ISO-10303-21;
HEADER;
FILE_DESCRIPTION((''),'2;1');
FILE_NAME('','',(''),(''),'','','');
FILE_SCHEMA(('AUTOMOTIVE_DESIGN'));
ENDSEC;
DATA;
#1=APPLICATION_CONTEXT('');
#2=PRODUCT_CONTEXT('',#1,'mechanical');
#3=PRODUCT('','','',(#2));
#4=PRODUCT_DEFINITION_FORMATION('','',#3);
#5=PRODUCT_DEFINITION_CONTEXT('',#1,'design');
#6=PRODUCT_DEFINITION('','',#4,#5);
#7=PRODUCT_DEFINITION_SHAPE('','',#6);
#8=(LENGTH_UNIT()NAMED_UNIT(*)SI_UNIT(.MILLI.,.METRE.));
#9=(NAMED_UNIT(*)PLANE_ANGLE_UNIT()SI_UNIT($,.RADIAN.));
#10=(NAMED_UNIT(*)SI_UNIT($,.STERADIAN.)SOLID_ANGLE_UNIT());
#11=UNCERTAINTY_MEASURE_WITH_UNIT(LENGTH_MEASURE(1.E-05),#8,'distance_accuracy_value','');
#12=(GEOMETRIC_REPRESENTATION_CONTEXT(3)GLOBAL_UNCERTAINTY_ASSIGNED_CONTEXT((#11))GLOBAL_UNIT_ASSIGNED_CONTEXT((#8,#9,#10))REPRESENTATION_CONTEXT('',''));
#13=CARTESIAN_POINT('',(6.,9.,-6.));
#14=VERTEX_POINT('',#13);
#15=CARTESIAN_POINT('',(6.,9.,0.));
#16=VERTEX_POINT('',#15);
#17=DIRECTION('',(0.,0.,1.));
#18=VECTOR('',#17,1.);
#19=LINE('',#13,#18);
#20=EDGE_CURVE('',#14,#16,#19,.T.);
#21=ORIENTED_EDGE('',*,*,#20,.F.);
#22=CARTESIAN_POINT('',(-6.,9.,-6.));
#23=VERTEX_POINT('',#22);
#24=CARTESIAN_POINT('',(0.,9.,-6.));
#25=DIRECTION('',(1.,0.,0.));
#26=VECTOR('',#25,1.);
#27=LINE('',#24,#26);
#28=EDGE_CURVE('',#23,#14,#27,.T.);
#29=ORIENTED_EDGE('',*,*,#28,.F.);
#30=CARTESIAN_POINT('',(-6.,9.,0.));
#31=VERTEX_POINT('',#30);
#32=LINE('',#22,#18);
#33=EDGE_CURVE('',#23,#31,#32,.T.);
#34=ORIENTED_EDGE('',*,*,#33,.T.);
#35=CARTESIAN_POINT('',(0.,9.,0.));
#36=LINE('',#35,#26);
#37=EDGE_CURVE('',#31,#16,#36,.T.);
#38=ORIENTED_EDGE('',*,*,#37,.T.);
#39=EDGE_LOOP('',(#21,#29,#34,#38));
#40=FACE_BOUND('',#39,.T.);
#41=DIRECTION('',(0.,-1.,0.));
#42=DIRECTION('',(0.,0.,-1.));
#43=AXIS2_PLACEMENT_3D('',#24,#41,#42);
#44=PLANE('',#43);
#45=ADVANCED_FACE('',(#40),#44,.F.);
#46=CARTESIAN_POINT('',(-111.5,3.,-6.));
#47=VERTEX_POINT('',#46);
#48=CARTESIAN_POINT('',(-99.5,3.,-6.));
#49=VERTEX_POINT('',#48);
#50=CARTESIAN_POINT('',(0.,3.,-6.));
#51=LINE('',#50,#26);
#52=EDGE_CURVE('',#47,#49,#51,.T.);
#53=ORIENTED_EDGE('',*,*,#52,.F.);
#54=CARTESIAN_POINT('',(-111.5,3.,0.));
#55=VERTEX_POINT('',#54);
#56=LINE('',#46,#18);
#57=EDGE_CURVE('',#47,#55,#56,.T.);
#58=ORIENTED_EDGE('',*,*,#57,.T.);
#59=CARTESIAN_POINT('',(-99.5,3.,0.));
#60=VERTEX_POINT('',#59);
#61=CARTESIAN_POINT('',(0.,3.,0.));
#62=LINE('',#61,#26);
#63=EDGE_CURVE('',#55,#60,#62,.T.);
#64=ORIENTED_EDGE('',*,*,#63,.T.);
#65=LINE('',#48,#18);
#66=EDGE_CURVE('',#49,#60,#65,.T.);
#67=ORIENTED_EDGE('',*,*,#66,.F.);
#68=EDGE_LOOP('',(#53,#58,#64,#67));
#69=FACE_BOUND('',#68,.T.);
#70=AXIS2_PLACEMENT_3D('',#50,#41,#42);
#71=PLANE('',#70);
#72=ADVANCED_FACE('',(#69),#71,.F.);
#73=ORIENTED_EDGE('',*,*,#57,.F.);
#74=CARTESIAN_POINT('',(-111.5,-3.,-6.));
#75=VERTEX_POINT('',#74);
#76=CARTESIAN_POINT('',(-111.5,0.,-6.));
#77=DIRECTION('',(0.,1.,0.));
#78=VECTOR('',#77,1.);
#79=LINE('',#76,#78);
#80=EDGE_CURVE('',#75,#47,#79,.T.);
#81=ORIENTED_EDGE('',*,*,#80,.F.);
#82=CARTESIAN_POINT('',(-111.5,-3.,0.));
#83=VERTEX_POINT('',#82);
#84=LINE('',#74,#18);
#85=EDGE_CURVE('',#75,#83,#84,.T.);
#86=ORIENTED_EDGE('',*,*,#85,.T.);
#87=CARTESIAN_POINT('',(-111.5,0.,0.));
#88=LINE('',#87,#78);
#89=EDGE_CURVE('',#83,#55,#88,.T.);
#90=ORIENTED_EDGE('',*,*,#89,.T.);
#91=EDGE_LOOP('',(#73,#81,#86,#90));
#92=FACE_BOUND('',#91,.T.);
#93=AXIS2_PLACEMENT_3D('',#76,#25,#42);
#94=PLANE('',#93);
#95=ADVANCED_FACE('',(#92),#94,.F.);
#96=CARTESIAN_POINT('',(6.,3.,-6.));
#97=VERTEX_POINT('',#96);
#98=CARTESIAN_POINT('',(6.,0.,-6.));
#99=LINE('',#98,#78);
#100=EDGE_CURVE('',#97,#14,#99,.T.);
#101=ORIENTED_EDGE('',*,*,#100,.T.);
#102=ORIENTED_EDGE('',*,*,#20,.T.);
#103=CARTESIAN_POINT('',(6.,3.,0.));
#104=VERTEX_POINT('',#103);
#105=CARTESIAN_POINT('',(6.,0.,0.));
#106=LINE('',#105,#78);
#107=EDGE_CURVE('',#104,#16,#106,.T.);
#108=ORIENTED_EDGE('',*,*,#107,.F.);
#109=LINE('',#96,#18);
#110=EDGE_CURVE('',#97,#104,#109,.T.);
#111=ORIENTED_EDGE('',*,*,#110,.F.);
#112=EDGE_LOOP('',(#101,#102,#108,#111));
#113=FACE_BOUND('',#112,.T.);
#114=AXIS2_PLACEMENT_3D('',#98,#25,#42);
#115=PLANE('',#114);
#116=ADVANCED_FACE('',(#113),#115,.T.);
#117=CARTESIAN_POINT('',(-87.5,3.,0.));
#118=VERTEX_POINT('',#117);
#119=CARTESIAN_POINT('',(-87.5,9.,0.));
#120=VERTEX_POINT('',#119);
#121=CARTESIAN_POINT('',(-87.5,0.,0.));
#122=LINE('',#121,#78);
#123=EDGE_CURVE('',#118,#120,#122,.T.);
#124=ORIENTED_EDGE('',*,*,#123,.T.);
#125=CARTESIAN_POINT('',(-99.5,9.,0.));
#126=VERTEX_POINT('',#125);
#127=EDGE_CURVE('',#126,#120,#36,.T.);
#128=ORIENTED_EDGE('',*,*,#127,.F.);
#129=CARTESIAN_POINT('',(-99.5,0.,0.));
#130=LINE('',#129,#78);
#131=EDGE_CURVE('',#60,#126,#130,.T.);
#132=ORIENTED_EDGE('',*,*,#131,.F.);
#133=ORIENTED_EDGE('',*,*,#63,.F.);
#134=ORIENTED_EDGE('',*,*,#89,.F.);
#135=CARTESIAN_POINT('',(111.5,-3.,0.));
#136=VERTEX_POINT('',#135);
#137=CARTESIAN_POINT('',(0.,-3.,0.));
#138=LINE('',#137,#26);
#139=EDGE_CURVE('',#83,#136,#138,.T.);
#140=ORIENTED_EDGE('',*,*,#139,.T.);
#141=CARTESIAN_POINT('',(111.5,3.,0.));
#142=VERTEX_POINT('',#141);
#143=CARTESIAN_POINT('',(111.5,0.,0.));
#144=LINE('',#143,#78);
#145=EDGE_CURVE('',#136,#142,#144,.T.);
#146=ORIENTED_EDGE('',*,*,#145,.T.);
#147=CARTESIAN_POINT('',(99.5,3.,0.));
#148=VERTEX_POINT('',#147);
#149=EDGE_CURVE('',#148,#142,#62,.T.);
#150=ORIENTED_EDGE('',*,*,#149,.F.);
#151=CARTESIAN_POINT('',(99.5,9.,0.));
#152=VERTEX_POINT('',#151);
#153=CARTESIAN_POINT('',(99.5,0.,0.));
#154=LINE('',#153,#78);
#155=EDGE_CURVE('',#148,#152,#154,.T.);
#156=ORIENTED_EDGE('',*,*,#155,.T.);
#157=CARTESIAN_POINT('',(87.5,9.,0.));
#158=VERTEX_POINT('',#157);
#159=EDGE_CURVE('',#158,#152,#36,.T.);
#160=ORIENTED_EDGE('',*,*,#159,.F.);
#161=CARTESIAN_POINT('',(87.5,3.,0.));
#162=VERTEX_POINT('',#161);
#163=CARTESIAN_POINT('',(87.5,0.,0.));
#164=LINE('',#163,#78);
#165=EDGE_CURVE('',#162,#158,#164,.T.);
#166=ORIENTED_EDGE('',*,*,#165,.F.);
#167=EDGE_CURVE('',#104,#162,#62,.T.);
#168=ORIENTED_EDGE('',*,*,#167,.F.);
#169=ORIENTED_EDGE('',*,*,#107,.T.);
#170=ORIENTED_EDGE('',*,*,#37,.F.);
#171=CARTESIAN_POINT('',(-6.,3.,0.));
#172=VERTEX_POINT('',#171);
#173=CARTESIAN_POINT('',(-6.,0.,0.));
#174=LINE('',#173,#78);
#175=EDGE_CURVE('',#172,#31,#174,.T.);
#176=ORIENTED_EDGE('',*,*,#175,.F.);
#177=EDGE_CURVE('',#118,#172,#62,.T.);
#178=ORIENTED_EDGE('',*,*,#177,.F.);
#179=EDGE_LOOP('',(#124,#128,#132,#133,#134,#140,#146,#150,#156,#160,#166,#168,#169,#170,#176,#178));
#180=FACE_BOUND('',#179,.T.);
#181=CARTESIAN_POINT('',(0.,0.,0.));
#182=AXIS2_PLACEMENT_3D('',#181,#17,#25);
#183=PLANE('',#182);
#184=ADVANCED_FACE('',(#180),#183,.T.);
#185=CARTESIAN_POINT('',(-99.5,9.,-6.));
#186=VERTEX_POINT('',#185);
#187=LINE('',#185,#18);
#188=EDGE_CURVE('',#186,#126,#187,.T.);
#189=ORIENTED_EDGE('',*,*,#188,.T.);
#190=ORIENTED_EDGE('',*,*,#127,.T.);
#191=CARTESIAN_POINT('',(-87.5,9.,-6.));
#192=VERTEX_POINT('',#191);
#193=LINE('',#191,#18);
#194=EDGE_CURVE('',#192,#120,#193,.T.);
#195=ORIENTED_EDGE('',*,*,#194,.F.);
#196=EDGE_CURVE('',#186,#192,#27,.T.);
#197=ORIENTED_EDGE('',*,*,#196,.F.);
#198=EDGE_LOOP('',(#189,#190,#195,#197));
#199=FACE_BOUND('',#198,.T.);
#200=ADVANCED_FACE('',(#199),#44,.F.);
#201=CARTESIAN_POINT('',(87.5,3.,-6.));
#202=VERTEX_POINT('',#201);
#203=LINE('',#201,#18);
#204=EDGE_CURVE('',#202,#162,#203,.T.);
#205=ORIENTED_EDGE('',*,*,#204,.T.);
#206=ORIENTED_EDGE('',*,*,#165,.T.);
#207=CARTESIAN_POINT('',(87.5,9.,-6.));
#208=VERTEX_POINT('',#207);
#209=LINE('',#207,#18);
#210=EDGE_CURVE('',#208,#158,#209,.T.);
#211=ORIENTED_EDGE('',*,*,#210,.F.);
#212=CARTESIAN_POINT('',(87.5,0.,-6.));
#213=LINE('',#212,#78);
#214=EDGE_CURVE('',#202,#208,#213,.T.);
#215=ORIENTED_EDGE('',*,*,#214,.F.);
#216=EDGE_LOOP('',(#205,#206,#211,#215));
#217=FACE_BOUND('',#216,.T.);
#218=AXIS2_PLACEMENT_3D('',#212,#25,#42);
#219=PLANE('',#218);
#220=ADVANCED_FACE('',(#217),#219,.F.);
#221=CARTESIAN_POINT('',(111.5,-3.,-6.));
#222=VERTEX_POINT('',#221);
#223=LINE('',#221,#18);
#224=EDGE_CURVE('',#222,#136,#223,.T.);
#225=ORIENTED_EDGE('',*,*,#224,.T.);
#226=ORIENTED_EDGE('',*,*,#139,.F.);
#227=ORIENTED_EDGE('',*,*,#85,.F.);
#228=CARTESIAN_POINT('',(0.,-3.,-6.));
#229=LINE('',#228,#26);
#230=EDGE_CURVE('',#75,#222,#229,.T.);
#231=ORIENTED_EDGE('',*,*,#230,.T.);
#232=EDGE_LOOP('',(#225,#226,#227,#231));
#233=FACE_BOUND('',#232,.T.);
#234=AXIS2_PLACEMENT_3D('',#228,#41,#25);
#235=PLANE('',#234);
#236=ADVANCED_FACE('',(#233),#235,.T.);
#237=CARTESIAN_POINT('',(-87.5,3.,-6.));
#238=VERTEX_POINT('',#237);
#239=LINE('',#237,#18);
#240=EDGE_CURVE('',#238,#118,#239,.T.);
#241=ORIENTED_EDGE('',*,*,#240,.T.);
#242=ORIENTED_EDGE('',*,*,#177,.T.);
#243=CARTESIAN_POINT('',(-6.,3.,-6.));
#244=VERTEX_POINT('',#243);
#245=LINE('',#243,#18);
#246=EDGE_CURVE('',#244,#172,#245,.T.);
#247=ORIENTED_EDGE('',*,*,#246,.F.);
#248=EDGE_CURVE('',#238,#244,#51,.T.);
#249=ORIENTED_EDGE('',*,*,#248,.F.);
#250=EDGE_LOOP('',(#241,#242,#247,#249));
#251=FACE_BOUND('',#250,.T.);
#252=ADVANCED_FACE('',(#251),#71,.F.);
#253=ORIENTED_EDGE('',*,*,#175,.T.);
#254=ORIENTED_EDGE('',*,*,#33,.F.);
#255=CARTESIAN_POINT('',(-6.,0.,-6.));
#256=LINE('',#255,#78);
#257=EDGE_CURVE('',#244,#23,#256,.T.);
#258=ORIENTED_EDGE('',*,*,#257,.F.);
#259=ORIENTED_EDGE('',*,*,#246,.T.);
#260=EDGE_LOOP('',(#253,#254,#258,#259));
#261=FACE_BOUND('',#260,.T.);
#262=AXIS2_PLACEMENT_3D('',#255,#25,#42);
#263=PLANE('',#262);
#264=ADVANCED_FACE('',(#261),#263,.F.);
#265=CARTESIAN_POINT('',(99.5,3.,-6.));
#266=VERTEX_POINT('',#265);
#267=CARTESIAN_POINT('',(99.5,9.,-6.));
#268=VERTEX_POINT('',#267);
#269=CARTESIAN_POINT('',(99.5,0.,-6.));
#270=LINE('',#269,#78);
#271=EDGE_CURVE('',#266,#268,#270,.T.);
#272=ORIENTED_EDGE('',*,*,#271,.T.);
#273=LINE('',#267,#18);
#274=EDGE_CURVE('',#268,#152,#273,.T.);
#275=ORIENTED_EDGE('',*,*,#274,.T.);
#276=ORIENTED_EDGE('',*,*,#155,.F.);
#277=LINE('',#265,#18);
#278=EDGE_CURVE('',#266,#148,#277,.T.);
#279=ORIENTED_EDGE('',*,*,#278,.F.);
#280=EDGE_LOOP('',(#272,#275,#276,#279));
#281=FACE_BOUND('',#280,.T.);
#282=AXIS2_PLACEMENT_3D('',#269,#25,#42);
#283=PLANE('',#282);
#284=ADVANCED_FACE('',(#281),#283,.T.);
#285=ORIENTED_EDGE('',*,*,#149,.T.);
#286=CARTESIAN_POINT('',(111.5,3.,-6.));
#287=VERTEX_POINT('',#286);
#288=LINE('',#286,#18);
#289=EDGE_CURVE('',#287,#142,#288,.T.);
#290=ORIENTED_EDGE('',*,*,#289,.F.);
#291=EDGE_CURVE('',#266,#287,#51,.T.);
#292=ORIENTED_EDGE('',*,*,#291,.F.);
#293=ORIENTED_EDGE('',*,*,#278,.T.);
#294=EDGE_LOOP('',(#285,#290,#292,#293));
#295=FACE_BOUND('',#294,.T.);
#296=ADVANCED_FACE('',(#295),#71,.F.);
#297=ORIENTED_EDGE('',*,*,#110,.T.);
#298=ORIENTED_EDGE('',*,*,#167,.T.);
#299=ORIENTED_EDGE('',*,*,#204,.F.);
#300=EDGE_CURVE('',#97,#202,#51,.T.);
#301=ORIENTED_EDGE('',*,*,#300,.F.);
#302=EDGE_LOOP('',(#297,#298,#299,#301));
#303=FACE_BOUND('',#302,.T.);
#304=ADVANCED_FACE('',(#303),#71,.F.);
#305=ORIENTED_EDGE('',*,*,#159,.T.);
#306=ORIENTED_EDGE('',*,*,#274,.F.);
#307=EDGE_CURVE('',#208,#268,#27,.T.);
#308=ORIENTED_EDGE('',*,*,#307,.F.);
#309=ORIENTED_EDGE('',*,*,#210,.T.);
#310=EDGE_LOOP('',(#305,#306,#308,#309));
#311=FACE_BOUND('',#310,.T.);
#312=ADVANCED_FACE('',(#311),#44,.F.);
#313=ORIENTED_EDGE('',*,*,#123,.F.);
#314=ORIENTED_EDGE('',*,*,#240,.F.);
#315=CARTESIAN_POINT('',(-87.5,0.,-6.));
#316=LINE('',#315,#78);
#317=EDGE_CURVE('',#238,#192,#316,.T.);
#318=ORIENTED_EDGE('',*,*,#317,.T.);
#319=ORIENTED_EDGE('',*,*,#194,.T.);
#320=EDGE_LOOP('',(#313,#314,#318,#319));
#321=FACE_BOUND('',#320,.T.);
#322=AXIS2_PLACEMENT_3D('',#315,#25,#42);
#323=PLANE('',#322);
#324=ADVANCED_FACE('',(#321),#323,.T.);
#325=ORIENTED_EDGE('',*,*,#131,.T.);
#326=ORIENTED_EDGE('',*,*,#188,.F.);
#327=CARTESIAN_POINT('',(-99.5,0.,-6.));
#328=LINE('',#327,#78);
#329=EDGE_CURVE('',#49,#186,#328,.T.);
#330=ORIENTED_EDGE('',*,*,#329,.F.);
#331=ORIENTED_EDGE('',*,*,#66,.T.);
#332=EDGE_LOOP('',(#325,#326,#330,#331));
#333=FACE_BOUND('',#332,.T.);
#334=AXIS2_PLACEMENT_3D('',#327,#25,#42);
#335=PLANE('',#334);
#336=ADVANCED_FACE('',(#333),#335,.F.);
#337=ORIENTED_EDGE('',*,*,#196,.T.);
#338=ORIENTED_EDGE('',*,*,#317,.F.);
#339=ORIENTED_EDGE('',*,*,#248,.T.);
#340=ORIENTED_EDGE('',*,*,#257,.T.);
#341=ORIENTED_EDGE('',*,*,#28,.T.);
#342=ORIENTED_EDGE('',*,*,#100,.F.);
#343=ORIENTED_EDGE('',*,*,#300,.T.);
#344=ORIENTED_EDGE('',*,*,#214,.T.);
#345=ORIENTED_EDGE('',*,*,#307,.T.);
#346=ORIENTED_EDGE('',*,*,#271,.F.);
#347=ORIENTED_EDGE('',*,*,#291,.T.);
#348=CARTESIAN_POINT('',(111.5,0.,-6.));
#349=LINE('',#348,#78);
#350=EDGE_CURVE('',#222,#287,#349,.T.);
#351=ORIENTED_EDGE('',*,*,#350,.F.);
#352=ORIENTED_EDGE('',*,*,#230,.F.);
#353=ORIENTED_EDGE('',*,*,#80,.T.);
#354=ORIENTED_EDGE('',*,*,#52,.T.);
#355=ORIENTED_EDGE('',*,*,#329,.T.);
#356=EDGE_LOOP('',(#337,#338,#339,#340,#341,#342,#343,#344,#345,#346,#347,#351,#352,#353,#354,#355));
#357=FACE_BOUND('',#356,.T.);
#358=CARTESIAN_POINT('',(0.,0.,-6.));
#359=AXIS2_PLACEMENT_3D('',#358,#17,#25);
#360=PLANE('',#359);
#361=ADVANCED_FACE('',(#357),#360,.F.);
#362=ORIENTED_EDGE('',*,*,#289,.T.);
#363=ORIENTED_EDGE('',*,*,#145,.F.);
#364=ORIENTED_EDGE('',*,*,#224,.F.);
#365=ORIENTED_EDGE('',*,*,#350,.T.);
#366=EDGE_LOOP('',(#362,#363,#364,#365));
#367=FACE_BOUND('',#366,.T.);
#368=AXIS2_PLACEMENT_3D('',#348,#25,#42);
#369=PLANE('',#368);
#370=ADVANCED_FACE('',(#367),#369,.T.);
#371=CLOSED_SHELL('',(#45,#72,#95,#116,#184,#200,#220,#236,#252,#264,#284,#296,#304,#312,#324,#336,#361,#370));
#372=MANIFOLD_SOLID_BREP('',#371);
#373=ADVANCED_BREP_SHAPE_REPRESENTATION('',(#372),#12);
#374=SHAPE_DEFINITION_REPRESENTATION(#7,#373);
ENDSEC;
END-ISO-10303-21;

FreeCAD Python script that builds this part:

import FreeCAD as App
import Part
import Sketcher
from FreeCAD import Vector

doc = App.newDocument("Part")
params = doc.addObject("Spreadsheet::Sheet", "Params")
for row, (alias, value) in enumerate([
    ("sketch1_width", "12 mm"),
    ("sketch1_width2", "223 mm"),
    ("sketch1_height", "6 mm"),
    ("pad1_length", "6 mm"),
], start=1):
    params.set(f"A{row}", alias)
    params.set(f"B{row}", "=" + value)
    params.setAlias(f"B{row}", alias)

body = doc.addObject("PartDesign::Body", "Body")

# Sketch on XY plane
sketch1 = body.newObject("Sketcher::SketchObject", "Sketch")
sketch1.AttachmentSupport = (doc.getObject("XY_Plane"), [""])
sketch1.MapMode = "FlatFace"
sketch1.addGeometry([
    Part.LineSegment(Vector(-100, 9, 0), Vector(-100, 3, 0)),  # 0
    Part.LineSegment(Vector(-100, 3, 0), Vector(-112, 3, 0)),  # 1
    Part.LineSegment(Vector(-112, 3, 0), Vector(-112, -3, 0)),  # 2
    Part.LineSegment(Vector(-112, -3, 0), Vector(112, -3, 0)),  # 3
    Part.LineSegment(Vector(112, -3, 0), Vector(112, 3, 0)),  # 4
    Part.LineSegment(Vector(112, 3, 0), Vector(100, 3, 0)),  # 5
    Part.LineSegment(Vector(100, 3, 0), Vector(100, 9, 0)),  # 6
    Part.LineSegment(Vector(100, 9, 0), Vector(88, 9, 0)),  # 7
    Part.LineSegment(Vector(88, 9, 0), Vector(88, 3, 0)),  # 8
    Part.LineSegment(Vector(88, 3, 0), Vector(6, 3, 0)),  # 9
    Part.LineSegment(Vector(6, 3, 0), Vector(6, 9, 0)),  # 10
    Part.LineSegment(Vector(6, 9, 0), Vector(-6, 9, 0)),  # 11
    Part.LineSegment(Vector(-6, 9, 0), Vector(-6, 3, 0)),  # 12
    Part.LineSegment(Vector(-6, 3, 0), Vector(-88, 3, 0)),  # 13
    Part.LineSegment(Vector(-88, 3, 0), Vector(-88, 9, 0)),  # 14
    Part.LineSegment(Vector(-88, 9, 0), Vector(-100, 9, 0)),  # 15
], False)
sketch1.addConstraint([
    Sketcher.Constraint("Coincident", 0, 2, 1, 1),
    Sketcher.Constraint("Coincident", 1, 2, 2, 1),
    Sketcher.Constraint("Coincident", 2, 2, 3, 1),
    Sketcher.Constraint("Coincident", 3, 2, 4, 1),
    Sketcher.Constraint("Coincident", 4, 2, 5, 1),
    Sketcher.Constraint("Coincident", 5, 2, 6, 1),
    Sketcher.Constraint("Coincident", 6, 2, 7, 1),
    Sketcher.Constraint("Coincident", 7, 2, 8, 1),
    Sketcher.Constraint("Coincident", 8, 2, 9, 1),
    Sketcher.Constraint("Coincident", 9, 2, 10, 1),
    Sketcher.Constraint("Coincident", 10, 2, 11, 1),
    Sketcher.Constraint("Coincident", 11, 2, 12, 1),
    Sketcher.Constraint("Coincident", 12, 2, 13, 1),
    Sketcher.Constraint("Coincident", 13, 2, 14, 1),
    Sketcher.Constraint("Coincident", 14, 2, 15, 1),
    Sketcher.Constraint("Coincident", 15, 2, 0, 1),
    Sketcher.Constraint("Vertical", 0),
    Sketcher.Constraint("Horizontal", 1),
    Sketcher.Constraint("Vertical", 2),
    Sketcher.Constraint("Horizontal", 3),
    Sketcher.Constraint("Vertical", 4),
    Sketcher.Constraint("Horizontal", 5),
    Sketcher.Constraint("Vertical", 6),
    Sketcher.Constraint("Horizontal", 7),
    Sketcher.Constraint("Vertical", 8),
    Sketcher.Constraint("Horizontal", 9),
    Sketcher.Constraint("Vertical", 10),
    Sketcher.Constraint("Horizontal", 11),
    Sketcher.Constraint("Vertical", 12),
    Sketcher.Constraint("Horizontal", 13),
    Sketcher.Constraint("Vertical", 14),
    Sketcher.Constraint("Horizontal", 15),
    Sketcher.Constraint("Symmetric", 1, 2, 3, 2, -1, 1),
    Sketcher.Constraint("Symmetric", 0, 2, 5, 2, -2),
    Sketcher.Constraint("Symmetric", 9, 2, 12, 2, -2),
    Sketcher.Constraint("Symmetric", 7, 2, 14, 2, -2),
    Sketcher.Constraint("Horizontal", 5, 2, 8, 2),
    Sketcher.Constraint("Horizontal", 7, 2, 10, 2),
    Sketcher.Constraint("Equal", 5, 7),
    Sketcher.Constraint("Equal", 7, 11),
    Sketcher.Constraint("Equal", 0, 2),
    Sketcher.Constraint("DistanceX", 1, 2, 1, 1, 12.0),
    Sketcher.Constraint("DistanceX", 3, 1, 3, 2, 223.0),
    Sketcher.Constraint("DistanceY", 0, 2, 0, 1, 6.0),
])
sketch1.setExpression("Constraints[41]", "Params.sketch1_width")
sketch1.setExpression("Constraints[42]", "Params.sketch1_width2")
sketch1.setExpression("Constraints[43]", "Params.sketch1_height")
pad1 = body.newObject("PartDesign::Pad", "Pad")
pad1.Profile = sketch1
pad1.setExpression("Length", "Params.pad1_length")
pad1.Reversed = True

doc.recompute()
